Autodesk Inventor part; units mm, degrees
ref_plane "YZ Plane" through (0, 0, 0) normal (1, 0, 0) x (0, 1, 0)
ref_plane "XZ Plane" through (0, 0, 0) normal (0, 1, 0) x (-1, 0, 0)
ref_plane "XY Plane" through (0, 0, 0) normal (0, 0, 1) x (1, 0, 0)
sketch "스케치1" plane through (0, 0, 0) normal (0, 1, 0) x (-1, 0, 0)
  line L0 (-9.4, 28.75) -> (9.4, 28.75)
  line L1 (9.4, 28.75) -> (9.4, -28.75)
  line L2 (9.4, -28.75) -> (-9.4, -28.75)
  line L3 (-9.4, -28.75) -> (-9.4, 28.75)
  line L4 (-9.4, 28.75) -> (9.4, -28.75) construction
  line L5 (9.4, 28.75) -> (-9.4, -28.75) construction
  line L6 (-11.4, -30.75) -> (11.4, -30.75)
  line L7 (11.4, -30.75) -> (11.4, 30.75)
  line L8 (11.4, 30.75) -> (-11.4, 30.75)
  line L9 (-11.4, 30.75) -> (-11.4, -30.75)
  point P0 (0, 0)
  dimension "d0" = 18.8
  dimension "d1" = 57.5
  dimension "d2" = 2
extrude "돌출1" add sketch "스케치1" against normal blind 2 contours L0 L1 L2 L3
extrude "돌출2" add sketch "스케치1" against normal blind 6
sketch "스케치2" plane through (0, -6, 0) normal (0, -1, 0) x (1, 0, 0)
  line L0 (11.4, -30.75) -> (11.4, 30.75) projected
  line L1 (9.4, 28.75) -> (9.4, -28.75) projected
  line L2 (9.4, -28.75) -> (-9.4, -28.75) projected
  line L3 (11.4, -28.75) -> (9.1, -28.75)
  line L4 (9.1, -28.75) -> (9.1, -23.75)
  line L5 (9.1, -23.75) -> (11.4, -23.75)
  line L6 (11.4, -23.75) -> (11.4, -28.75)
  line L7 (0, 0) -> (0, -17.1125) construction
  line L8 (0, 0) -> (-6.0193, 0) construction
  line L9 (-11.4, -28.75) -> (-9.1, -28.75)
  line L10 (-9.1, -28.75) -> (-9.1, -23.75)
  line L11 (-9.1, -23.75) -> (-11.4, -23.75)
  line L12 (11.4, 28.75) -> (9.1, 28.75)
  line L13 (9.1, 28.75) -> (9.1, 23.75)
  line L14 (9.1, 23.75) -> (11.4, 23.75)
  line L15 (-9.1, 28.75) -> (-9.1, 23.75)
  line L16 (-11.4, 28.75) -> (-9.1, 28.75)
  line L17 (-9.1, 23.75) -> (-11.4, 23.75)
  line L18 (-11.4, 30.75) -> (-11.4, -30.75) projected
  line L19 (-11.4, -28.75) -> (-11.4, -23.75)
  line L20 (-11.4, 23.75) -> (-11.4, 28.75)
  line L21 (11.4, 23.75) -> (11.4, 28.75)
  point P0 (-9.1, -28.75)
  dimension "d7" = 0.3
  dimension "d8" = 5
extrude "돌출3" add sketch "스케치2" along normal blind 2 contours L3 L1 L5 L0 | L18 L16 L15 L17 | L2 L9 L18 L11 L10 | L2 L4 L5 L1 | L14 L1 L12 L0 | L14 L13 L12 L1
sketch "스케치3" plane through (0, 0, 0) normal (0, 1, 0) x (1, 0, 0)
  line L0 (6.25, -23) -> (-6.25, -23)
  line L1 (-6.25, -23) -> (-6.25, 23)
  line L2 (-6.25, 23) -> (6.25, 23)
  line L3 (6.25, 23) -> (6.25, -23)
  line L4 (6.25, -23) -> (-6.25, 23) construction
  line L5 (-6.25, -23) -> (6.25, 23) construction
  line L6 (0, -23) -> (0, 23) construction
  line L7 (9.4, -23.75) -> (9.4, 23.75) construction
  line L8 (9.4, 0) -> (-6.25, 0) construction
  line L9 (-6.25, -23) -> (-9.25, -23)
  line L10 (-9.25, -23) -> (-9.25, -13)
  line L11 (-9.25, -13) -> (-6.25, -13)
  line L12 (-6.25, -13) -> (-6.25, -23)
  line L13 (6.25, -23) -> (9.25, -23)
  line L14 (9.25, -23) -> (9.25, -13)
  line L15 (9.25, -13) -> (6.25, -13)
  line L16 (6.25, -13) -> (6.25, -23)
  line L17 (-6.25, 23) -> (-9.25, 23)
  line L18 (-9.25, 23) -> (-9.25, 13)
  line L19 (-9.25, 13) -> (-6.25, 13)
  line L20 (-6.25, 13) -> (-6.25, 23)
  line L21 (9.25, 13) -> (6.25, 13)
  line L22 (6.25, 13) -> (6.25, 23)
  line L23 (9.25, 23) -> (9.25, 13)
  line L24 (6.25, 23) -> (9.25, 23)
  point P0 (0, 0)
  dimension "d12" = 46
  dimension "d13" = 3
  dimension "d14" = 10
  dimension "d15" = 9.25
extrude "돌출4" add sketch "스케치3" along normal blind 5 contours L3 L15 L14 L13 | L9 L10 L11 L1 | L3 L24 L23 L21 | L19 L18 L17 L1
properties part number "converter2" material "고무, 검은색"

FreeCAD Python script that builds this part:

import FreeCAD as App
import Part
import Sketcher
from FreeCAD import Vector
Q = App.Units.Quantity


def add_polygon(sketch, points):
    """Adds a closed chain of lines whose ends are joined by coincident constraints."""
    first, n = sketch.GeometryCount, len(points)
    for a, b in zip(points, points[1:] + points[:1]):
        sketch.addGeometry(Part.LineSegment(App.Vector(*a, 0), App.Vector(*b, 0)), False)
    for i in range(n):
        sketch.addConstraint(Sketcher.Constraint("Coincident", first + i, 2, first + (i + 1) % n, 1))

doc = App.newDocument("Part")
body = doc.addObject("PartDesign::Body", "Body")

sketch1 = body.newObject("Sketcher::SketchObject", "Sketch")
sketch1.AttachmentSupport = (doc.getObject("XZ_Plane"), [""])
sketch1.MapMode = "FlatFace"
add_polygon(sketch1, [(-9, 29), (9, 29), (9, -29), (-9, -29)])
sketch1.addConstraint(Sketcher.Constraint("Horizontal", 0))
sketch1.addConstraint(Sketcher.Constraint("Vertical", 1))
sketch1.addConstraint(Sketcher.Constraint("Horizontal", 2))
sketch1.addConstraint(Sketcher.Constraint("Vertical", 3))
sketch1.addConstraint(Sketcher.Constraint("Symmetric", 0, 2, 2, 2, -1, 1))
sketch1.addConstraint(Sketcher.Constraint("DistanceX", 0, 1, 0, 2, Q("18.8 mm")))
sketch1.addConstraint(Sketcher.Constraint("DistanceY", 1, 2, 1, 1, Q("57.5 mm")))
pad1 = body.newObject("PartDesign::Pad", "Pad")
pad1.Profile = sketch1
pad1.Length = 2

sketch2 = body.newObject("Sketcher::SketchObject", "Sketch001")
sketch2.AttachmentSupport = (doc.getObject("XZ_Plane"), [""])
sketch2.MapMode = "FlatFace"
add_polygon(sketch2, [(11, 31), (11, -31), (-11, -31), (-11, 31)])
add_polygon(sketch2, [(9, -29), (9, 29), (-9, 29), (-9, -29)])
sketch2.addConstraint(Sketcher.Constraint("Vertical", 0))
sketch2.addConstraint(Sketcher.Constraint("Horizontal", 1))
sketch2.addConstraint(Sketcher.Constraint("Vertical", 2))
sketch2.addConstraint(Sketcher.Constraint("Horizontal", 3))
sketch2.addConstraint(Sketcher.Constraint("Vertical", 4))
sketch2.addConstraint(Sketcher.Constraint("Horizontal", 5))
sketch2.addConstraint(Sketcher.Constraint("Vertical", 6))
sketch2.addConstraint(Sketcher.Constraint("Horizontal", 7))
sketch2.addConstraint(Sketcher.Constraint("Symmetric", 0, 2, 2, 2, -1, 1))
sketch2.addConstraint(Sketcher.Constraint("Symmetric", 4, 2, 6, 2, -1, 1))
sketch2.addConstraint(Sketcher.Constraint("DistanceX", 5, 2, 5, 1, Q("18.8 mm")))
sketch2.addConstraint(Sketcher.Constraint("DistanceY", 4, 1, 4, 2, Q("57.5 mm")))
sketch2.addConstraint(Sketcher.Constraint("DistanceX", 4, 2, 3, 2, Q("2 mm")))
sketch2.addConstraint(Sketcher.Constraint("DistanceY", 4, 2, 3, 2, Q("2 mm")))
pad2 = body.newObject("PartDesign::Pad", "Pad001")
pad2.Profile = sketch2
pad2.Length = 6

sketch3 = body.newObject("Sketcher::SketchObject", "Sketch002")
sketch3.AttachmentSupport = (doc.getObject("XZ_Plane"), [""])
sketch3.MapMode = "FlatFace"
sketch3.AttachmentOffset = App.Placement(Vector(0, 0, 6), App.Rotation())
add_polygon(sketch3, [(11.4, -28.8), (11.4, -23.8), (9.1, -23.8), (9.1, -28.8)])
add_polygon(sketch3, [(-11.4, 28.8), (-11.4, 23.8), (-9.1, 23.8), (-9.1, 28.8)])
add_polygon(sketch3, [(-11.4, -28.8), (-9.1, -28.8), (-9.1, -23.8), (-11.4, -23.8)])
add_polygon(sketch3, [(11.4, 23.8), (11.4, 28.8), (9.1, 28.8), (9.1, 23.8)])
sketch3.addConstraint(Sketcher.Constraint("Vertical", 0))
sketch3.addConstraint(Sketcher.Constraint("Horizontal", 1))
sketch3.addConstraint(Sketcher.Constraint("Vertical", 2))
sketch3.addConstraint(Sketcher.Constraint("Horizontal", 3))
sketch3.addConstraint(Sketcher.Constraint("Vertical", 4))
sketch3.addConstraint(Sketcher.Constraint("Horizontal", 5))
sketch3.addConstraint(Sketcher.Constraint("Vertical", 6))
sketch3.addConstraint(Sketcher.Constraint("Horizontal", 7))
sketch3.addConstraint(Sketcher.Constraint("Horizontal", 8))
sketch3.addConstraint(Sketcher.Constraint("Vertical", 9))
sketch3.addConstraint(Sketcher.Constraint("Horizontal", 10))
sketch3.addConstraint(Sketcher.Constraint("Vertical", 11))
sketch3.addConstraint(Sketcher.Constraint("Vertical", 12))
sketch3.addConstraint(Sketcher.Constraint("Horizontal", 13))
sketch3.addConstraint(Sketcher.Constraint("Vertical", 14))
sketch3.addConstraint(Sketcher.Constraint("Horizontal", 15))
sketch3.addConstraint(Sketcher.Constraint("Symmetric", 0, 2, 4, 2, -1, 1))
sketch3.addConstraint(Sketcher.Constraint("Symmetric", 2, 2, 6, 2, -1, 1))
sketch3.addConstraint(Sketcher.Constraint("Symmetric", 11, 2, 12, 2, -1, 1))
sketch3.addConstraint(Sketcher.Constraint("Symmetric", 9, 2, 14, 2, -1, 1))
sketch3.addConstraint(Sketcher.Constraint("Symmetric", 2, 2, 8, 2, -2))
sketch3.addConstraint(Sketcher.Constraint("Symmetric", 0, 2, 10, 2, -2))
sketch3.addConstraint(Sketcher.Constraint("DistanceY", 0, 1, 0, 2, Q("5 mm")))
sketch3.addConstraint(Sketcher.Constraint("DistanceX", 1, 2, 1, 1, Q("2.3 mm")))
sketch3.addConstraint(Sketcher.Constraint("DistanceX", -1, 1, 0, 2, Q("11.4 mm")))
sketch3.addConstraint(Sketcher.Constraint("DistanceY", 1, 2, 4, 2, Q("47.5 mm")))
pad3 = body.newObject("PartDesign::Pad", "Pad002")
pad3.Profile = sketch3
pad3.Length = 2

sketch4 = body.newObject("Sketcher::SketchObject", "Sketch003")
sketch4.AttachmentSupport = (doc.getObject("XZ_Plane"), [""])
sketch4.MapMode = "FlatFace"
add_polygon(sketch4, [(6.2, 13), (6.2, 23), (9.2, 23), (9.2, 13)])
add_polygon(sketch4, [(-9.2, 23), (-6.2, 23), (-6.2, 13), (-9.2, 13)])
add_polygon(sketch4, [(6.2, -23), (6.2, -13), (9.2, -13), (9.2, -23)])
add_polygon(sketch4, [(-9.2, -13), (-6.2, -13), (-6.2, -23), (-9.2, -23)])
sketch4.addConstraint(Sketcher.Constraint("Vertical", 0))
sketch4.addConstraint(Sketcher.Constraint("Horizontal", 1))
sketch4.addConstraint(Sketcher.Constraint("Vertical", 2))
sketch4.addConstraint(Sketcher.Constraint("Horizontal", 3))
sketch4.addConstraint(Sketcher.Constraint("Horizontal", 4))
sketch4.addConstraint(Sketcher.Constraint("Vertical", 5))
sketch4.addConstraint(Sketcher.Constraint("Horizontal", 6))
sketch4.addConstraint(Sketcher.Constraint("Vertical", 7))
sketch4.addConstraint(Sketcher.Constraint("Vertical", 8))
sketch4.addConstraint(Sketcher.Constraint("Horizontal", 9))
sketch4.addConstraint(Sketcher.Constraint("Vertical", 10))
sketch4.addConstraint(Sketcher.Constraint("Horizontal", 11))
sketch4.addConstraint(Sketcher.Constraint("Horizontal", 12))
sketch4.addConstraint(Sketcher.Constraint("Vertical", 13))
sketch4.addConstraint(Sketcher.Constraint("Horizontal", 14))
sketch4.addConstraint(Sketcher.Constraint("Vertical", 15))
sketch4.addConstraint(Sketcher.Constraint("Symmetric", 5, 2, 8, 2, -1, 1))
sketch4.addConstraint(Sketcher.Constraint("Symmetric", 7, 2, 10, 2, -1, 1))
sketch4.addConstraint(Sketcher.Constraint("Symmetric", 3, 2, 12, 2, -1, 1))
sketch4.addConstraint(Sketcher.Constraint("Symmetric", 1, 2, 14, 2, -1, 1))
sketch4.addConstraint(Sketcher.Constraint("Symmetric", 0, 2, 4, 2, -2))
sketch4.addConstraint(Sketcher.Constraint("Symmetric", 2, 2, 6, 2, -2))
sketch4.addConstraint(Sketcher.Constraint("DistanceX", 1, 1, 1, 2, Q("3 mm")))
sketch4.addConstraint(Sketcher.Constraint("DistanceY", 0, 1, 0, 2, Q("10 mm")))
sketch4.addConstraint(Sketcher.Constraint("DistanceX", -1, 1, 1, 2, Q("9.25 mm")))
sketch4.addConstraint(Sketcher.Constraint("DistanceY", -1, 1, 0, 2, Q("23 mm")))
pad4 = body.newObject("PartDesign::Pad", "Pad003")
pad4.Profile = sketch4
pad4.Length = 5
pad4.Reversed = True

doc.recompute()
